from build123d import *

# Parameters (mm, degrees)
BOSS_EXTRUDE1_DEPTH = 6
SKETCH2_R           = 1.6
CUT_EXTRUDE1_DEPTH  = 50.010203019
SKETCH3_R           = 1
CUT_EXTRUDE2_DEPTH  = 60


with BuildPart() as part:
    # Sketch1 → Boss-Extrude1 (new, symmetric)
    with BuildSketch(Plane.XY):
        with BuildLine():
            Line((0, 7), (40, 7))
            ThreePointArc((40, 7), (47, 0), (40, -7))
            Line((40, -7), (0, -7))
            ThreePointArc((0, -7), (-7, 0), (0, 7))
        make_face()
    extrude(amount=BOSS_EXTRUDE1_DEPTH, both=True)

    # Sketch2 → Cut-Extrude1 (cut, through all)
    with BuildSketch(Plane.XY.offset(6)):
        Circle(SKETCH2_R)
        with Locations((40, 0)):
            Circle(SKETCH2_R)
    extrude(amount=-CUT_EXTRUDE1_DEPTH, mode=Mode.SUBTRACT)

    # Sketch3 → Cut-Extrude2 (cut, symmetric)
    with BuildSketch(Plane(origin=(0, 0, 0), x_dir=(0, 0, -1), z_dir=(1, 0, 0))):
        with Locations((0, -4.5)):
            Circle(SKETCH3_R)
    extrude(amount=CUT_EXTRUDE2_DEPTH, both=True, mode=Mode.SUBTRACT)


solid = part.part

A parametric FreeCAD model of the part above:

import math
import FreeCAD as App
import Part
import Sketcher

V = App.Vector
Q = App.Units.Quantity

doc = App.newDocument("Part")
body = doc.addObject("PartDesign::Body", "Body")

# Sketch on XY plane
sketch1 = body.newObject("Sketcher::SketchObject", "Sketch")
sketch1.AttachmentSupport = (doc.getObject("XY_Plane"), [""])
sketch1.MapMode = "FlatFace"
sketch1.addGeometry([
    Part.LineSegment(V(40, 7, 0), V(0, 7, 0)),
    Part.ArcOfCircle(Part.Circle(V(0, 0, 0), V(0, 0, 1), 7), math.radians(90), math.radians(270)),
    Part.LineSegment(V(0, -7, 0), V(40, -7, 0)),
    Part.ArcOfCircle(Part.Circle(V(40, 0, 0), V(0, 0, 1), 7), math.radians(-90), math.radians(90)),
], False)
sketch1.addConstraint([
    Sketcher.Constraint("Tangent", 0, 2, 1, 1),
    Sketcher.Constraint("Tangent", 1, 2, 2, 1),
    Sketcher.Constraint("Tangent", 2, 2, 3, 1),
    Sketcher.Constraint("Tangent", 3, 2, 0, 1),
    Sketcher.Constraint("Horizontal", 0),
    Sketcher.Constraint("Horizontal", 2),
    Sketcher.Constraint("Coincident", 1, 3, -1, 1),
    Sketcher.Constraint("Radius", 1, Q("7 mm")),
    Sketcher.Constraint("DistanceX", 0, 2, 0, 1, Q("40 mm")),
])
pad1 = body.newObject("PartDesign::Pad", "Pad")
pad1.Profile = sketch1
pad1.Length = 12
pad1.Midplane = True

# Sketch on XY plane
sketch2 = body.newObject("Sketcher::SketchObject", "Sketch001")
sketch2.AttachmentSupport = (doc.getObject("XY_Plane"), [""])
sketch2.MapMode = "FlatFace"
sketch2.AttachmentOffset = App.Placement(V(0, 0, 6), App.Rotation())
sketch2.addGeometry([
    Part.Circle(V(0, 0, 0), V(0, 0, 1), 1.6),
    Part.Circle(V(40, 0, 0), V(0, 0, 1), 1.6),
], False)
sketch2.addConstraint([
    Sketcher.Constraint("Coincident", 0, 3, -1, 1),
    Sketcher.Constraint("Equal", 0, 1),
    Sketcher.Constraint("PointOnObject", 1, 3, -1),
    Sketcher.Constraint("Diameter", 0, Q("3.2 mm")),
    Sketcher.Constraint("DistanceX", -1, 1, 1, 3, Q("40 mm")),
])
pocket1 = body.newObject("PartDesign::Pocket", "Pocket")
pocket1.Profile = sketch2
pocket1.Type = "ThroughAll"

# Sketch on YZ plane
sketch3 = body.newObject("Sketcher::SketchObject", "Sketch002")
sketch3.AttachmentSupport = (doc.getObject("YZ_Plane"), [""])
sketch3.MapMode = "FlatFace"
sketch3.addGeometry(Part.Circle(V(-4.5, 0, 0), V(0, 0, 1), 1), False)
sketch3.addConstraint([
    Sketcher.Constraint("PointOnObject", 0, 3, -1),
    Sketcher.Constraint("Diameter", 0, Q("2 mm")),
    Sketcher.Constraint("DistanceX", 0, 3, -1, 1, Q("4.5 mm")),
])
pocket2 = body.newObject("PartDesign::Pocket", "Pocket001")
pocket2.Profile = sketch3
pocket2.Length = 120
pocket2.Midplane = True

doc.recompute()
